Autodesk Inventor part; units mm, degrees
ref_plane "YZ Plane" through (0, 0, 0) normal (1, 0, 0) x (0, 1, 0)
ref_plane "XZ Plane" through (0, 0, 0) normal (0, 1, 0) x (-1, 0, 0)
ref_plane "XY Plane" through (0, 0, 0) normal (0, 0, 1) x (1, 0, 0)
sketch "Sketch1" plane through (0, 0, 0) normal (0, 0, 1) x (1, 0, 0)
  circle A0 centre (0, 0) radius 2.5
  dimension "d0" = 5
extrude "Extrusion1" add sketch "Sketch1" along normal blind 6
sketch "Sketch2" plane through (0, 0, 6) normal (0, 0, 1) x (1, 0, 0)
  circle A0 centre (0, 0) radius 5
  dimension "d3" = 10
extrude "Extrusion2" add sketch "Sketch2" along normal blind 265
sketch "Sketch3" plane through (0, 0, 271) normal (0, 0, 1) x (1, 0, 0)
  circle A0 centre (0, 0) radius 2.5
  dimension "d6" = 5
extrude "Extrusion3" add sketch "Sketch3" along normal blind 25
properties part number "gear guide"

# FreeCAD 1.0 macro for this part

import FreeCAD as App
import Part
import Sketcher

V = App.Vector
Q = App.Units.Quantity

doc = App.newDocument("Part")
params = doc.addObject("Spreadsheet::Sheet", "Params")
for row, (alias, value) in enumerate([
    ("sketch1_diameter", "5 mm"),
    ("pad1_length", "6 mm"),
    ("sketch2_diameter", "10 mm"),
    ("pad2_length", "265 mm"),
    ("sketch3_diameter", "5 mm"),
    ("pad3_length", "25 mm"),
], start=1):
    params.set(f"A{row}", alias)
    params.set(f"B{row}", "=" + value)
    params.setAlias(f"B{row}", alias)

body = doc.addObject("PartDesign::Body", "Body")

sketch1 = body.newObject("Sketcher::SketchObject", "Sketch")
sketch1.AttachmentSupport = (doc.getObject("XY_Plane"), [""])
sketch1.MapMode = "FlatFace"
sketch1.addGeometry(Part.Circle(V(0, 0, 0), V(0, 0, 1), 2.5), False)
sketch1.addConstraint(Sketcher.Constraint("Coincident", 0, 3, -1, 1))
sketch1.addConstraint(Sketcher.Constraint("Diameter", 0, Q("5 mm")))
sketch1.setExpression("Constraints[1]", "Params.sketch1_diameter")
pad1 = body.newObject("PartDesign::Pad", "Pad")
pad1.Profile = sketch1
pad1.setExpression("Length", "Params.pad1_length")

sketch2 = body.newObject("Sketcher::SketchObject", "Sketch001")
sketch2.AttachmentSupport = (doc.getObject("XY_Plane"), [""])
sketch2.MapMode = "FlatFace"
sketch2.AttachmentOffset = App.Placement(V(0, 0, 6), App.Rotation())
sketch2.addGeometry(Part.Circle(V(0, 0, 0), V(0, 0, 1), 5), False)
sketch2.addConstraint(Sketcher.Constraint("Coincident", 0, 3, -1, 1))
sketch2.addConstraint(Sketcher.Constraint("Diameter", 0, Q("10 mm")))
sketch2.setExpression("Constraints[1]", "Params.sketch2_diameter")
pad2 = body.newObject("PartDesign::Pad", "Pad001")
pad2.Profile = sketch2
pad2.setExpression("Length", "Params.pad2_length")

sketch3 = body.newObject("Sketcher::SketchObject", "Sketch002")
sketch3.AttachmentSupport = (doc.getObject("XY_Plane"), [""])
sketch3.MapMode = "FlatFace"
sketch3.AttachmentOffset = App.Placement(V(0, 0, 271), App.Rotation())
sketch3.addGeometry(Part.Circle(V(0, 0, 0), V(0, 0, 1), 2.5), False)
sketch3.addConstraint(Sketcher.Constraint("Coincident", 0, 3, -1, 1))
sketch3.addConstraint(Sketcher.Constraint("Diameter", 0, Q("5 mm")))
sketch3.setExpression("Constraints[1]", "Params.sketch3_diameter")
pad3 = body.newObject("PartDesign::Pad", "Pad002")
pad3.Profile = sketch3
pad3.setExpression("Length", "Params.pad3_length")

doc.recompute()
